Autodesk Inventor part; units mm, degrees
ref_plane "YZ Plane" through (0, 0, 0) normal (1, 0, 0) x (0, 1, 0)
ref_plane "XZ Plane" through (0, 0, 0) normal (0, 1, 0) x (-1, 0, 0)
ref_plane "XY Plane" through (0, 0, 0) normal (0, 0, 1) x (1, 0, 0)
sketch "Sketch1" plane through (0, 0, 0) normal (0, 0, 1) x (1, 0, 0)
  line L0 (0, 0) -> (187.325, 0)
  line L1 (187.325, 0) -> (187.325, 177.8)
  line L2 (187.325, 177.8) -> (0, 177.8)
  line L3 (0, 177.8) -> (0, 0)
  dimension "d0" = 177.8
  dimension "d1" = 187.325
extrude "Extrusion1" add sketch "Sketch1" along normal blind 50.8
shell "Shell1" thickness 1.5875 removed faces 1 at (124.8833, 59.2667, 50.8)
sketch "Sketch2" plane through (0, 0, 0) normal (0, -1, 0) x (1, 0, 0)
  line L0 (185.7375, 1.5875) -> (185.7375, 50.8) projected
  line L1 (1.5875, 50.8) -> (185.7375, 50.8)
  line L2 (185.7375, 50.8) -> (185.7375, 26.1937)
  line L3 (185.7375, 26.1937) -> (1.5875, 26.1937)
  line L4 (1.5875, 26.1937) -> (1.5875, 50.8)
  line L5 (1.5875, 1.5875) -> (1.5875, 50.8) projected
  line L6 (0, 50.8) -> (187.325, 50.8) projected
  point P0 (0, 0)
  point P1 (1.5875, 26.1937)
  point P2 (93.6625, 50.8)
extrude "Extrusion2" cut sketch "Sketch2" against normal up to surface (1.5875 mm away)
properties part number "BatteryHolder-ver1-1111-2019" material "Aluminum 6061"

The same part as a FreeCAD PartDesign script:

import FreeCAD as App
import Part
import Sketcher
from FreeCAD import Vector
Q = App.Units.Quantity


def faces_at(feature, points):
    """Names of the faces that lie closest to the given points."""
    faces = feature.Shape.Faces
    near = lambda p: min(range(len(faces)), key=lambda i: faces[i].distToShape(Part.Vertex(*p))[0])
    return sorted({f"Face{near(p) + 1}" for p in points})


def add_polygon(sketch, points):
    """Adds a closed chain of lines whose ends are joined by coincident constraints."""
    first, n = sketch.GeometryCount, len(points)
    for a, b in zip(points, points[1:] + points[:1]):
        sketch.addGeometry(Part.LineSegment(App.Vector(*a, 0), App.Vector(*b, 0)), False)
    for i in range(n):
        sketch.addConstraint(Sketcher.Constraint("Coincident", first + i, 2, first + (i + 1) % n, 1))

doc = App.newDocument("Part")
params = doc.addObject("Spreadsheet::Sheet", "Params")
for row, (alias, value) in enumerate([
    ("sketch1_height", "7 in"),
    ("sketch1_width", "7.375 in"),
    ("pad1_length", "2 in"),
    ("thickness_wall", "0.0625 in"),
    ("sketch2_width", "7.25 in"),
    ("sketch2_height", "0.968752 in"),
    ("pocket1_length", "0.0625 in"),
], start=1):
    params.set(f"A{row}", alias)
    params.set(f"B{row}", "=" + value)
    params.setAlias(f"B{row}", alias)

body = doc.addObject("PartDesign::Body", "Body")

# Sketch on XY plane
sketch1 = body.newObject("Sketcher::SketchObject", "Sketch")
sketch1.AttachmentSupport = (doc.getObject("XY_Plane"), [""])
sketch1.MapMode = "FlatFace"
add_polygon(sketch1, [(0, 178), (0, 0), (187, 0), (187, 178)])  # lines 0-3
sketch1.addConstraint(Sketcher.Constraint("Vertical", 0))
sketch1.addConstraint(Sketcher.Constraint("Horizontal", 1))
sketch1.addConstraint(Sketcher.Constraint("Vertical", 2))
sketch1.addConstraint(Sketcher.Constraint("Horizontal", 3))
sketch1.addConstraint(Sketcher.Constraint("Coincident", 0, 2, -1, 1))
sketch1.addConstraint(Sketcher.Constraint("DistanceY", 0, 2, 0, 1, Q("7 in")))
sketch1.addConstraint(Sketcher.Constraint("DistanceX", 1, 1, 1, 2, Q("7.375 in")))
sketch1.setExpression("Constraints[9]", "Params.sketch1_height")
sketch1.setExpression("Constraints[10]", "Params.sketch1_width")
pad1 = body.newObject("PartDesign::Pad", "Pad")
pad1.Profile = sketch1
pad1.setExpression("Length", "Params.pad1_length")
doc.recompute()

thickness = body.newObject("PartDesign::Thickness", "Thickness")
thickness.Base = (pad1, faces_at(pad1, [(124.883, 59.267, 50.8)]))
thickness.setExpression("Value", "Params.thickness_wall")
thickness.Reversed = True
thickness.Join = "Intersection"

# Sketch on XZ plane
sketch2 = body.newObject("Sketcher::SketchObject", "Sketch001")
sketch2.AttachmentSupport = (doc.getObject("XZ_Plane"), [""])
sketch2.MapMode = "FlatFace"
add_polygon(sketch2, [(2, 26), (186, 26), (186, 51), (2, 51)])  # lines 0-3
sketch2.addConstraint(Sketcher.Constraint("Horizontal", 0))
sketch2.addConstraint(Sketcher.Constraint("Vertical", 1))
sketch2.addConstraint(Sketcher.Constraint("Horizontal", 2))
sketch2.addConstraint(Sketcher.Constraint("Vertical", 3))
sketch2.addConstraint(Sketcher.Constraint("DistanceY", -1, 1, 1, 2, Q("2 in")))
sketch2.addConstraint(Sketcher.Constraint("DistanceX", 0, 1, 0, 2, Q("7.25 in")))
sketch2.addConstraint(Sketcher.Constraint("DistanceY", 1, 1, 1, 2, Q("0.968752 in")))
sketch2.addConstraint(Sketcher.Constraint("DistanceX", -1, 1, 0, 2, Q("7.3125 in")))
sketch2.setExpression("Constraints[9]", "Params.sketch2_width")
sketch2.setExpression("Constraints[10]", "Params.sketch2_height")
pocket1 = body.newObject("PartDesign::Pocket", "Pocket")
pocket1.Profile = sketch2
pocket1.setExpression("Length", "Params.pocket1_length")

doc.recompute()
